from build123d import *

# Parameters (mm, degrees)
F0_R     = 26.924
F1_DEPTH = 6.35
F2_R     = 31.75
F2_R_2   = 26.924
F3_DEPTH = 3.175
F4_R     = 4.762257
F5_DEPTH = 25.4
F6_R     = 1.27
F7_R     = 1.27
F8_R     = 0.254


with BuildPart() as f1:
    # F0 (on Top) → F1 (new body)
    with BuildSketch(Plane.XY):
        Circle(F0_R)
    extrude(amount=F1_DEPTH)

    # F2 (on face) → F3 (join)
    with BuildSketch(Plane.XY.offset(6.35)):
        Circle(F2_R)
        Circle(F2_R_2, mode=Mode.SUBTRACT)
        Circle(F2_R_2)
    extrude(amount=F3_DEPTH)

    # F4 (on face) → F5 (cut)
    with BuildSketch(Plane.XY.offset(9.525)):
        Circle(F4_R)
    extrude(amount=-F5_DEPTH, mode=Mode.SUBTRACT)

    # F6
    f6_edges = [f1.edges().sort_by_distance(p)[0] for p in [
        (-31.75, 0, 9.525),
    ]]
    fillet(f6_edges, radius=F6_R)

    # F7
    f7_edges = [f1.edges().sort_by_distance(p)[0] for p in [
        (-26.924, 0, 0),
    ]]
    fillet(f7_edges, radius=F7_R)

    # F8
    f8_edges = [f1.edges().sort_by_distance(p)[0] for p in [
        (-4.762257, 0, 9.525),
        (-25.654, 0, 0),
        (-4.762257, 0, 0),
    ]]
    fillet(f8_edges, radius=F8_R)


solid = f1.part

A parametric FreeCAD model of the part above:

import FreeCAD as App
import Part
import Sketcher
Q = App.Units.Quantity


def edges_at(feature, points):
    """Names of the edges that pass closest to the given points."""
    edges = feature.Shape.Edges
    near = lambda p: min(range(len(edges)), key=lambda i: edges[i].distToShape(Part.Vertex(*p))[0])
    return sorted({f"Edge{near(p) + 1}" for p in points})

doc = App.newDocument("Part")
body = doc.addObject("PartDesign::Body", "Body")

# Sketch on XY plane
sketch1 = doc.addObject("Sketcher::SketchObject", "Sketch")
body.addObject(sketch1)
sketch1.AttachmentSupport = (doc.XY_Plane, [""])
sketch1.MapMode = "FlatFace"
sketch1.addGeometry(Part.Circle(App.Vector(0, 0, 0), App.Vector(0, 0, 1), 27), False)
sketch1.addConstraint(Sketcher.Constraint("Coincident", 0, 3, -1, 1))
sketch1.addConstraint(Sketcher.Constraint("Diameter", 0, Q("2.12 in")))
pad1 = doc.addObject("PartDesign::Pad", "Pad")
body.addObject(pad1)
pad1.Profile = sketch1
pad1.Length = Q("0.25 in")

# Sketch on XY plane
sketch2 = doc.addObject("Sketcher::SketchObject", "Sketch001")
body.addObject(sketch2)
sketch2.AttachmentSupport = (doc.XY_Plane, [""])
sketch2.MapMode = "FlatFace"
sketch2.AttachmentOffset = App.Placement(App.Vector(0, 0, 0.25 * 25.4), App.Rotation())
sketch2.addGeometry(Part.Circle(App.Vector(0, 0, 0), App.Vector(0, 0, 1), 32), False)
sketch2.addConstraint(Sketcher.Constraint("Coincident", 0, 3, -1, 1))
sketch2.addConstraint(Sketcher.Constraint("Diameter", 0, Q("2.5 in")))
pad2 = doc.addObject("PartDesign::Pad", "Pad001")
body.addObject(pad2)
pad2.Profile = sketch2
pad2.Length = Q("0.125 in")

# Sketch on XY plane
sketch3 = doc.addObject("Sketcher::SketchObject", "Sketch002")
body.addObject(sketch3)
sketch3.AttachmentSupport = (doc.XY_Plane, [""])
sketch3.MapMode = "FlatFace"
sketch3.AttachmentOffset = App.Placement(App.Vector(0, 0, 0.375 * 25.4), App.Rotation())
sketch3.addGeometry(Part.Circle(App.Vector(0, 0, 0), App.Vector(0, 0, 1), 4.8), False)
sketch3.addConstraint(Sketcher.Constraint("Coincident", 0, 3, -1, 1))
sketch3.addConstraint(Sketcher.Constraint("Diameter", 0, Q("9.524514 mm")))
pocket1 = doc.addObject("PartDesign::Pocket", "Pocket")
body.addObject(pocket1)
pocket1.Profile = sketch3
pocket1.Length = Q("1 in")
doc.recompute()

fillet = doc.addObject("PartDesign::Fillet", "Fillet")
body.addObject(fillet)
fillet.Base = (pocket1, edges_at(pocket1, [(-31.75, 0, 9.525)]))
fillet.Radius = Q("0.05 in")
doc.recompute()

fillet2 = doc.addObject("PartDesign::Fillet", "Fillet001")
body.addObject(fillet2)
fillet2.Base = (fillet, edges_at(fillet, [(-26.924, 0, 0)]))
fillet2.Radius = Q("0.05 in")
doc.recompute()

fillet3 = doc.addObject("PartDesign::Fillet", "Fillet002")
body.addObject(fillet3)
fillet3.Base = (fillet2, edges_at(fillet2, [(-4.762, 0, 9.525), (-25.654, 0, 0), (-4.762, 0, 0)]))
fillet3.Radius = Q("0.01 in")

doc.recompute()
